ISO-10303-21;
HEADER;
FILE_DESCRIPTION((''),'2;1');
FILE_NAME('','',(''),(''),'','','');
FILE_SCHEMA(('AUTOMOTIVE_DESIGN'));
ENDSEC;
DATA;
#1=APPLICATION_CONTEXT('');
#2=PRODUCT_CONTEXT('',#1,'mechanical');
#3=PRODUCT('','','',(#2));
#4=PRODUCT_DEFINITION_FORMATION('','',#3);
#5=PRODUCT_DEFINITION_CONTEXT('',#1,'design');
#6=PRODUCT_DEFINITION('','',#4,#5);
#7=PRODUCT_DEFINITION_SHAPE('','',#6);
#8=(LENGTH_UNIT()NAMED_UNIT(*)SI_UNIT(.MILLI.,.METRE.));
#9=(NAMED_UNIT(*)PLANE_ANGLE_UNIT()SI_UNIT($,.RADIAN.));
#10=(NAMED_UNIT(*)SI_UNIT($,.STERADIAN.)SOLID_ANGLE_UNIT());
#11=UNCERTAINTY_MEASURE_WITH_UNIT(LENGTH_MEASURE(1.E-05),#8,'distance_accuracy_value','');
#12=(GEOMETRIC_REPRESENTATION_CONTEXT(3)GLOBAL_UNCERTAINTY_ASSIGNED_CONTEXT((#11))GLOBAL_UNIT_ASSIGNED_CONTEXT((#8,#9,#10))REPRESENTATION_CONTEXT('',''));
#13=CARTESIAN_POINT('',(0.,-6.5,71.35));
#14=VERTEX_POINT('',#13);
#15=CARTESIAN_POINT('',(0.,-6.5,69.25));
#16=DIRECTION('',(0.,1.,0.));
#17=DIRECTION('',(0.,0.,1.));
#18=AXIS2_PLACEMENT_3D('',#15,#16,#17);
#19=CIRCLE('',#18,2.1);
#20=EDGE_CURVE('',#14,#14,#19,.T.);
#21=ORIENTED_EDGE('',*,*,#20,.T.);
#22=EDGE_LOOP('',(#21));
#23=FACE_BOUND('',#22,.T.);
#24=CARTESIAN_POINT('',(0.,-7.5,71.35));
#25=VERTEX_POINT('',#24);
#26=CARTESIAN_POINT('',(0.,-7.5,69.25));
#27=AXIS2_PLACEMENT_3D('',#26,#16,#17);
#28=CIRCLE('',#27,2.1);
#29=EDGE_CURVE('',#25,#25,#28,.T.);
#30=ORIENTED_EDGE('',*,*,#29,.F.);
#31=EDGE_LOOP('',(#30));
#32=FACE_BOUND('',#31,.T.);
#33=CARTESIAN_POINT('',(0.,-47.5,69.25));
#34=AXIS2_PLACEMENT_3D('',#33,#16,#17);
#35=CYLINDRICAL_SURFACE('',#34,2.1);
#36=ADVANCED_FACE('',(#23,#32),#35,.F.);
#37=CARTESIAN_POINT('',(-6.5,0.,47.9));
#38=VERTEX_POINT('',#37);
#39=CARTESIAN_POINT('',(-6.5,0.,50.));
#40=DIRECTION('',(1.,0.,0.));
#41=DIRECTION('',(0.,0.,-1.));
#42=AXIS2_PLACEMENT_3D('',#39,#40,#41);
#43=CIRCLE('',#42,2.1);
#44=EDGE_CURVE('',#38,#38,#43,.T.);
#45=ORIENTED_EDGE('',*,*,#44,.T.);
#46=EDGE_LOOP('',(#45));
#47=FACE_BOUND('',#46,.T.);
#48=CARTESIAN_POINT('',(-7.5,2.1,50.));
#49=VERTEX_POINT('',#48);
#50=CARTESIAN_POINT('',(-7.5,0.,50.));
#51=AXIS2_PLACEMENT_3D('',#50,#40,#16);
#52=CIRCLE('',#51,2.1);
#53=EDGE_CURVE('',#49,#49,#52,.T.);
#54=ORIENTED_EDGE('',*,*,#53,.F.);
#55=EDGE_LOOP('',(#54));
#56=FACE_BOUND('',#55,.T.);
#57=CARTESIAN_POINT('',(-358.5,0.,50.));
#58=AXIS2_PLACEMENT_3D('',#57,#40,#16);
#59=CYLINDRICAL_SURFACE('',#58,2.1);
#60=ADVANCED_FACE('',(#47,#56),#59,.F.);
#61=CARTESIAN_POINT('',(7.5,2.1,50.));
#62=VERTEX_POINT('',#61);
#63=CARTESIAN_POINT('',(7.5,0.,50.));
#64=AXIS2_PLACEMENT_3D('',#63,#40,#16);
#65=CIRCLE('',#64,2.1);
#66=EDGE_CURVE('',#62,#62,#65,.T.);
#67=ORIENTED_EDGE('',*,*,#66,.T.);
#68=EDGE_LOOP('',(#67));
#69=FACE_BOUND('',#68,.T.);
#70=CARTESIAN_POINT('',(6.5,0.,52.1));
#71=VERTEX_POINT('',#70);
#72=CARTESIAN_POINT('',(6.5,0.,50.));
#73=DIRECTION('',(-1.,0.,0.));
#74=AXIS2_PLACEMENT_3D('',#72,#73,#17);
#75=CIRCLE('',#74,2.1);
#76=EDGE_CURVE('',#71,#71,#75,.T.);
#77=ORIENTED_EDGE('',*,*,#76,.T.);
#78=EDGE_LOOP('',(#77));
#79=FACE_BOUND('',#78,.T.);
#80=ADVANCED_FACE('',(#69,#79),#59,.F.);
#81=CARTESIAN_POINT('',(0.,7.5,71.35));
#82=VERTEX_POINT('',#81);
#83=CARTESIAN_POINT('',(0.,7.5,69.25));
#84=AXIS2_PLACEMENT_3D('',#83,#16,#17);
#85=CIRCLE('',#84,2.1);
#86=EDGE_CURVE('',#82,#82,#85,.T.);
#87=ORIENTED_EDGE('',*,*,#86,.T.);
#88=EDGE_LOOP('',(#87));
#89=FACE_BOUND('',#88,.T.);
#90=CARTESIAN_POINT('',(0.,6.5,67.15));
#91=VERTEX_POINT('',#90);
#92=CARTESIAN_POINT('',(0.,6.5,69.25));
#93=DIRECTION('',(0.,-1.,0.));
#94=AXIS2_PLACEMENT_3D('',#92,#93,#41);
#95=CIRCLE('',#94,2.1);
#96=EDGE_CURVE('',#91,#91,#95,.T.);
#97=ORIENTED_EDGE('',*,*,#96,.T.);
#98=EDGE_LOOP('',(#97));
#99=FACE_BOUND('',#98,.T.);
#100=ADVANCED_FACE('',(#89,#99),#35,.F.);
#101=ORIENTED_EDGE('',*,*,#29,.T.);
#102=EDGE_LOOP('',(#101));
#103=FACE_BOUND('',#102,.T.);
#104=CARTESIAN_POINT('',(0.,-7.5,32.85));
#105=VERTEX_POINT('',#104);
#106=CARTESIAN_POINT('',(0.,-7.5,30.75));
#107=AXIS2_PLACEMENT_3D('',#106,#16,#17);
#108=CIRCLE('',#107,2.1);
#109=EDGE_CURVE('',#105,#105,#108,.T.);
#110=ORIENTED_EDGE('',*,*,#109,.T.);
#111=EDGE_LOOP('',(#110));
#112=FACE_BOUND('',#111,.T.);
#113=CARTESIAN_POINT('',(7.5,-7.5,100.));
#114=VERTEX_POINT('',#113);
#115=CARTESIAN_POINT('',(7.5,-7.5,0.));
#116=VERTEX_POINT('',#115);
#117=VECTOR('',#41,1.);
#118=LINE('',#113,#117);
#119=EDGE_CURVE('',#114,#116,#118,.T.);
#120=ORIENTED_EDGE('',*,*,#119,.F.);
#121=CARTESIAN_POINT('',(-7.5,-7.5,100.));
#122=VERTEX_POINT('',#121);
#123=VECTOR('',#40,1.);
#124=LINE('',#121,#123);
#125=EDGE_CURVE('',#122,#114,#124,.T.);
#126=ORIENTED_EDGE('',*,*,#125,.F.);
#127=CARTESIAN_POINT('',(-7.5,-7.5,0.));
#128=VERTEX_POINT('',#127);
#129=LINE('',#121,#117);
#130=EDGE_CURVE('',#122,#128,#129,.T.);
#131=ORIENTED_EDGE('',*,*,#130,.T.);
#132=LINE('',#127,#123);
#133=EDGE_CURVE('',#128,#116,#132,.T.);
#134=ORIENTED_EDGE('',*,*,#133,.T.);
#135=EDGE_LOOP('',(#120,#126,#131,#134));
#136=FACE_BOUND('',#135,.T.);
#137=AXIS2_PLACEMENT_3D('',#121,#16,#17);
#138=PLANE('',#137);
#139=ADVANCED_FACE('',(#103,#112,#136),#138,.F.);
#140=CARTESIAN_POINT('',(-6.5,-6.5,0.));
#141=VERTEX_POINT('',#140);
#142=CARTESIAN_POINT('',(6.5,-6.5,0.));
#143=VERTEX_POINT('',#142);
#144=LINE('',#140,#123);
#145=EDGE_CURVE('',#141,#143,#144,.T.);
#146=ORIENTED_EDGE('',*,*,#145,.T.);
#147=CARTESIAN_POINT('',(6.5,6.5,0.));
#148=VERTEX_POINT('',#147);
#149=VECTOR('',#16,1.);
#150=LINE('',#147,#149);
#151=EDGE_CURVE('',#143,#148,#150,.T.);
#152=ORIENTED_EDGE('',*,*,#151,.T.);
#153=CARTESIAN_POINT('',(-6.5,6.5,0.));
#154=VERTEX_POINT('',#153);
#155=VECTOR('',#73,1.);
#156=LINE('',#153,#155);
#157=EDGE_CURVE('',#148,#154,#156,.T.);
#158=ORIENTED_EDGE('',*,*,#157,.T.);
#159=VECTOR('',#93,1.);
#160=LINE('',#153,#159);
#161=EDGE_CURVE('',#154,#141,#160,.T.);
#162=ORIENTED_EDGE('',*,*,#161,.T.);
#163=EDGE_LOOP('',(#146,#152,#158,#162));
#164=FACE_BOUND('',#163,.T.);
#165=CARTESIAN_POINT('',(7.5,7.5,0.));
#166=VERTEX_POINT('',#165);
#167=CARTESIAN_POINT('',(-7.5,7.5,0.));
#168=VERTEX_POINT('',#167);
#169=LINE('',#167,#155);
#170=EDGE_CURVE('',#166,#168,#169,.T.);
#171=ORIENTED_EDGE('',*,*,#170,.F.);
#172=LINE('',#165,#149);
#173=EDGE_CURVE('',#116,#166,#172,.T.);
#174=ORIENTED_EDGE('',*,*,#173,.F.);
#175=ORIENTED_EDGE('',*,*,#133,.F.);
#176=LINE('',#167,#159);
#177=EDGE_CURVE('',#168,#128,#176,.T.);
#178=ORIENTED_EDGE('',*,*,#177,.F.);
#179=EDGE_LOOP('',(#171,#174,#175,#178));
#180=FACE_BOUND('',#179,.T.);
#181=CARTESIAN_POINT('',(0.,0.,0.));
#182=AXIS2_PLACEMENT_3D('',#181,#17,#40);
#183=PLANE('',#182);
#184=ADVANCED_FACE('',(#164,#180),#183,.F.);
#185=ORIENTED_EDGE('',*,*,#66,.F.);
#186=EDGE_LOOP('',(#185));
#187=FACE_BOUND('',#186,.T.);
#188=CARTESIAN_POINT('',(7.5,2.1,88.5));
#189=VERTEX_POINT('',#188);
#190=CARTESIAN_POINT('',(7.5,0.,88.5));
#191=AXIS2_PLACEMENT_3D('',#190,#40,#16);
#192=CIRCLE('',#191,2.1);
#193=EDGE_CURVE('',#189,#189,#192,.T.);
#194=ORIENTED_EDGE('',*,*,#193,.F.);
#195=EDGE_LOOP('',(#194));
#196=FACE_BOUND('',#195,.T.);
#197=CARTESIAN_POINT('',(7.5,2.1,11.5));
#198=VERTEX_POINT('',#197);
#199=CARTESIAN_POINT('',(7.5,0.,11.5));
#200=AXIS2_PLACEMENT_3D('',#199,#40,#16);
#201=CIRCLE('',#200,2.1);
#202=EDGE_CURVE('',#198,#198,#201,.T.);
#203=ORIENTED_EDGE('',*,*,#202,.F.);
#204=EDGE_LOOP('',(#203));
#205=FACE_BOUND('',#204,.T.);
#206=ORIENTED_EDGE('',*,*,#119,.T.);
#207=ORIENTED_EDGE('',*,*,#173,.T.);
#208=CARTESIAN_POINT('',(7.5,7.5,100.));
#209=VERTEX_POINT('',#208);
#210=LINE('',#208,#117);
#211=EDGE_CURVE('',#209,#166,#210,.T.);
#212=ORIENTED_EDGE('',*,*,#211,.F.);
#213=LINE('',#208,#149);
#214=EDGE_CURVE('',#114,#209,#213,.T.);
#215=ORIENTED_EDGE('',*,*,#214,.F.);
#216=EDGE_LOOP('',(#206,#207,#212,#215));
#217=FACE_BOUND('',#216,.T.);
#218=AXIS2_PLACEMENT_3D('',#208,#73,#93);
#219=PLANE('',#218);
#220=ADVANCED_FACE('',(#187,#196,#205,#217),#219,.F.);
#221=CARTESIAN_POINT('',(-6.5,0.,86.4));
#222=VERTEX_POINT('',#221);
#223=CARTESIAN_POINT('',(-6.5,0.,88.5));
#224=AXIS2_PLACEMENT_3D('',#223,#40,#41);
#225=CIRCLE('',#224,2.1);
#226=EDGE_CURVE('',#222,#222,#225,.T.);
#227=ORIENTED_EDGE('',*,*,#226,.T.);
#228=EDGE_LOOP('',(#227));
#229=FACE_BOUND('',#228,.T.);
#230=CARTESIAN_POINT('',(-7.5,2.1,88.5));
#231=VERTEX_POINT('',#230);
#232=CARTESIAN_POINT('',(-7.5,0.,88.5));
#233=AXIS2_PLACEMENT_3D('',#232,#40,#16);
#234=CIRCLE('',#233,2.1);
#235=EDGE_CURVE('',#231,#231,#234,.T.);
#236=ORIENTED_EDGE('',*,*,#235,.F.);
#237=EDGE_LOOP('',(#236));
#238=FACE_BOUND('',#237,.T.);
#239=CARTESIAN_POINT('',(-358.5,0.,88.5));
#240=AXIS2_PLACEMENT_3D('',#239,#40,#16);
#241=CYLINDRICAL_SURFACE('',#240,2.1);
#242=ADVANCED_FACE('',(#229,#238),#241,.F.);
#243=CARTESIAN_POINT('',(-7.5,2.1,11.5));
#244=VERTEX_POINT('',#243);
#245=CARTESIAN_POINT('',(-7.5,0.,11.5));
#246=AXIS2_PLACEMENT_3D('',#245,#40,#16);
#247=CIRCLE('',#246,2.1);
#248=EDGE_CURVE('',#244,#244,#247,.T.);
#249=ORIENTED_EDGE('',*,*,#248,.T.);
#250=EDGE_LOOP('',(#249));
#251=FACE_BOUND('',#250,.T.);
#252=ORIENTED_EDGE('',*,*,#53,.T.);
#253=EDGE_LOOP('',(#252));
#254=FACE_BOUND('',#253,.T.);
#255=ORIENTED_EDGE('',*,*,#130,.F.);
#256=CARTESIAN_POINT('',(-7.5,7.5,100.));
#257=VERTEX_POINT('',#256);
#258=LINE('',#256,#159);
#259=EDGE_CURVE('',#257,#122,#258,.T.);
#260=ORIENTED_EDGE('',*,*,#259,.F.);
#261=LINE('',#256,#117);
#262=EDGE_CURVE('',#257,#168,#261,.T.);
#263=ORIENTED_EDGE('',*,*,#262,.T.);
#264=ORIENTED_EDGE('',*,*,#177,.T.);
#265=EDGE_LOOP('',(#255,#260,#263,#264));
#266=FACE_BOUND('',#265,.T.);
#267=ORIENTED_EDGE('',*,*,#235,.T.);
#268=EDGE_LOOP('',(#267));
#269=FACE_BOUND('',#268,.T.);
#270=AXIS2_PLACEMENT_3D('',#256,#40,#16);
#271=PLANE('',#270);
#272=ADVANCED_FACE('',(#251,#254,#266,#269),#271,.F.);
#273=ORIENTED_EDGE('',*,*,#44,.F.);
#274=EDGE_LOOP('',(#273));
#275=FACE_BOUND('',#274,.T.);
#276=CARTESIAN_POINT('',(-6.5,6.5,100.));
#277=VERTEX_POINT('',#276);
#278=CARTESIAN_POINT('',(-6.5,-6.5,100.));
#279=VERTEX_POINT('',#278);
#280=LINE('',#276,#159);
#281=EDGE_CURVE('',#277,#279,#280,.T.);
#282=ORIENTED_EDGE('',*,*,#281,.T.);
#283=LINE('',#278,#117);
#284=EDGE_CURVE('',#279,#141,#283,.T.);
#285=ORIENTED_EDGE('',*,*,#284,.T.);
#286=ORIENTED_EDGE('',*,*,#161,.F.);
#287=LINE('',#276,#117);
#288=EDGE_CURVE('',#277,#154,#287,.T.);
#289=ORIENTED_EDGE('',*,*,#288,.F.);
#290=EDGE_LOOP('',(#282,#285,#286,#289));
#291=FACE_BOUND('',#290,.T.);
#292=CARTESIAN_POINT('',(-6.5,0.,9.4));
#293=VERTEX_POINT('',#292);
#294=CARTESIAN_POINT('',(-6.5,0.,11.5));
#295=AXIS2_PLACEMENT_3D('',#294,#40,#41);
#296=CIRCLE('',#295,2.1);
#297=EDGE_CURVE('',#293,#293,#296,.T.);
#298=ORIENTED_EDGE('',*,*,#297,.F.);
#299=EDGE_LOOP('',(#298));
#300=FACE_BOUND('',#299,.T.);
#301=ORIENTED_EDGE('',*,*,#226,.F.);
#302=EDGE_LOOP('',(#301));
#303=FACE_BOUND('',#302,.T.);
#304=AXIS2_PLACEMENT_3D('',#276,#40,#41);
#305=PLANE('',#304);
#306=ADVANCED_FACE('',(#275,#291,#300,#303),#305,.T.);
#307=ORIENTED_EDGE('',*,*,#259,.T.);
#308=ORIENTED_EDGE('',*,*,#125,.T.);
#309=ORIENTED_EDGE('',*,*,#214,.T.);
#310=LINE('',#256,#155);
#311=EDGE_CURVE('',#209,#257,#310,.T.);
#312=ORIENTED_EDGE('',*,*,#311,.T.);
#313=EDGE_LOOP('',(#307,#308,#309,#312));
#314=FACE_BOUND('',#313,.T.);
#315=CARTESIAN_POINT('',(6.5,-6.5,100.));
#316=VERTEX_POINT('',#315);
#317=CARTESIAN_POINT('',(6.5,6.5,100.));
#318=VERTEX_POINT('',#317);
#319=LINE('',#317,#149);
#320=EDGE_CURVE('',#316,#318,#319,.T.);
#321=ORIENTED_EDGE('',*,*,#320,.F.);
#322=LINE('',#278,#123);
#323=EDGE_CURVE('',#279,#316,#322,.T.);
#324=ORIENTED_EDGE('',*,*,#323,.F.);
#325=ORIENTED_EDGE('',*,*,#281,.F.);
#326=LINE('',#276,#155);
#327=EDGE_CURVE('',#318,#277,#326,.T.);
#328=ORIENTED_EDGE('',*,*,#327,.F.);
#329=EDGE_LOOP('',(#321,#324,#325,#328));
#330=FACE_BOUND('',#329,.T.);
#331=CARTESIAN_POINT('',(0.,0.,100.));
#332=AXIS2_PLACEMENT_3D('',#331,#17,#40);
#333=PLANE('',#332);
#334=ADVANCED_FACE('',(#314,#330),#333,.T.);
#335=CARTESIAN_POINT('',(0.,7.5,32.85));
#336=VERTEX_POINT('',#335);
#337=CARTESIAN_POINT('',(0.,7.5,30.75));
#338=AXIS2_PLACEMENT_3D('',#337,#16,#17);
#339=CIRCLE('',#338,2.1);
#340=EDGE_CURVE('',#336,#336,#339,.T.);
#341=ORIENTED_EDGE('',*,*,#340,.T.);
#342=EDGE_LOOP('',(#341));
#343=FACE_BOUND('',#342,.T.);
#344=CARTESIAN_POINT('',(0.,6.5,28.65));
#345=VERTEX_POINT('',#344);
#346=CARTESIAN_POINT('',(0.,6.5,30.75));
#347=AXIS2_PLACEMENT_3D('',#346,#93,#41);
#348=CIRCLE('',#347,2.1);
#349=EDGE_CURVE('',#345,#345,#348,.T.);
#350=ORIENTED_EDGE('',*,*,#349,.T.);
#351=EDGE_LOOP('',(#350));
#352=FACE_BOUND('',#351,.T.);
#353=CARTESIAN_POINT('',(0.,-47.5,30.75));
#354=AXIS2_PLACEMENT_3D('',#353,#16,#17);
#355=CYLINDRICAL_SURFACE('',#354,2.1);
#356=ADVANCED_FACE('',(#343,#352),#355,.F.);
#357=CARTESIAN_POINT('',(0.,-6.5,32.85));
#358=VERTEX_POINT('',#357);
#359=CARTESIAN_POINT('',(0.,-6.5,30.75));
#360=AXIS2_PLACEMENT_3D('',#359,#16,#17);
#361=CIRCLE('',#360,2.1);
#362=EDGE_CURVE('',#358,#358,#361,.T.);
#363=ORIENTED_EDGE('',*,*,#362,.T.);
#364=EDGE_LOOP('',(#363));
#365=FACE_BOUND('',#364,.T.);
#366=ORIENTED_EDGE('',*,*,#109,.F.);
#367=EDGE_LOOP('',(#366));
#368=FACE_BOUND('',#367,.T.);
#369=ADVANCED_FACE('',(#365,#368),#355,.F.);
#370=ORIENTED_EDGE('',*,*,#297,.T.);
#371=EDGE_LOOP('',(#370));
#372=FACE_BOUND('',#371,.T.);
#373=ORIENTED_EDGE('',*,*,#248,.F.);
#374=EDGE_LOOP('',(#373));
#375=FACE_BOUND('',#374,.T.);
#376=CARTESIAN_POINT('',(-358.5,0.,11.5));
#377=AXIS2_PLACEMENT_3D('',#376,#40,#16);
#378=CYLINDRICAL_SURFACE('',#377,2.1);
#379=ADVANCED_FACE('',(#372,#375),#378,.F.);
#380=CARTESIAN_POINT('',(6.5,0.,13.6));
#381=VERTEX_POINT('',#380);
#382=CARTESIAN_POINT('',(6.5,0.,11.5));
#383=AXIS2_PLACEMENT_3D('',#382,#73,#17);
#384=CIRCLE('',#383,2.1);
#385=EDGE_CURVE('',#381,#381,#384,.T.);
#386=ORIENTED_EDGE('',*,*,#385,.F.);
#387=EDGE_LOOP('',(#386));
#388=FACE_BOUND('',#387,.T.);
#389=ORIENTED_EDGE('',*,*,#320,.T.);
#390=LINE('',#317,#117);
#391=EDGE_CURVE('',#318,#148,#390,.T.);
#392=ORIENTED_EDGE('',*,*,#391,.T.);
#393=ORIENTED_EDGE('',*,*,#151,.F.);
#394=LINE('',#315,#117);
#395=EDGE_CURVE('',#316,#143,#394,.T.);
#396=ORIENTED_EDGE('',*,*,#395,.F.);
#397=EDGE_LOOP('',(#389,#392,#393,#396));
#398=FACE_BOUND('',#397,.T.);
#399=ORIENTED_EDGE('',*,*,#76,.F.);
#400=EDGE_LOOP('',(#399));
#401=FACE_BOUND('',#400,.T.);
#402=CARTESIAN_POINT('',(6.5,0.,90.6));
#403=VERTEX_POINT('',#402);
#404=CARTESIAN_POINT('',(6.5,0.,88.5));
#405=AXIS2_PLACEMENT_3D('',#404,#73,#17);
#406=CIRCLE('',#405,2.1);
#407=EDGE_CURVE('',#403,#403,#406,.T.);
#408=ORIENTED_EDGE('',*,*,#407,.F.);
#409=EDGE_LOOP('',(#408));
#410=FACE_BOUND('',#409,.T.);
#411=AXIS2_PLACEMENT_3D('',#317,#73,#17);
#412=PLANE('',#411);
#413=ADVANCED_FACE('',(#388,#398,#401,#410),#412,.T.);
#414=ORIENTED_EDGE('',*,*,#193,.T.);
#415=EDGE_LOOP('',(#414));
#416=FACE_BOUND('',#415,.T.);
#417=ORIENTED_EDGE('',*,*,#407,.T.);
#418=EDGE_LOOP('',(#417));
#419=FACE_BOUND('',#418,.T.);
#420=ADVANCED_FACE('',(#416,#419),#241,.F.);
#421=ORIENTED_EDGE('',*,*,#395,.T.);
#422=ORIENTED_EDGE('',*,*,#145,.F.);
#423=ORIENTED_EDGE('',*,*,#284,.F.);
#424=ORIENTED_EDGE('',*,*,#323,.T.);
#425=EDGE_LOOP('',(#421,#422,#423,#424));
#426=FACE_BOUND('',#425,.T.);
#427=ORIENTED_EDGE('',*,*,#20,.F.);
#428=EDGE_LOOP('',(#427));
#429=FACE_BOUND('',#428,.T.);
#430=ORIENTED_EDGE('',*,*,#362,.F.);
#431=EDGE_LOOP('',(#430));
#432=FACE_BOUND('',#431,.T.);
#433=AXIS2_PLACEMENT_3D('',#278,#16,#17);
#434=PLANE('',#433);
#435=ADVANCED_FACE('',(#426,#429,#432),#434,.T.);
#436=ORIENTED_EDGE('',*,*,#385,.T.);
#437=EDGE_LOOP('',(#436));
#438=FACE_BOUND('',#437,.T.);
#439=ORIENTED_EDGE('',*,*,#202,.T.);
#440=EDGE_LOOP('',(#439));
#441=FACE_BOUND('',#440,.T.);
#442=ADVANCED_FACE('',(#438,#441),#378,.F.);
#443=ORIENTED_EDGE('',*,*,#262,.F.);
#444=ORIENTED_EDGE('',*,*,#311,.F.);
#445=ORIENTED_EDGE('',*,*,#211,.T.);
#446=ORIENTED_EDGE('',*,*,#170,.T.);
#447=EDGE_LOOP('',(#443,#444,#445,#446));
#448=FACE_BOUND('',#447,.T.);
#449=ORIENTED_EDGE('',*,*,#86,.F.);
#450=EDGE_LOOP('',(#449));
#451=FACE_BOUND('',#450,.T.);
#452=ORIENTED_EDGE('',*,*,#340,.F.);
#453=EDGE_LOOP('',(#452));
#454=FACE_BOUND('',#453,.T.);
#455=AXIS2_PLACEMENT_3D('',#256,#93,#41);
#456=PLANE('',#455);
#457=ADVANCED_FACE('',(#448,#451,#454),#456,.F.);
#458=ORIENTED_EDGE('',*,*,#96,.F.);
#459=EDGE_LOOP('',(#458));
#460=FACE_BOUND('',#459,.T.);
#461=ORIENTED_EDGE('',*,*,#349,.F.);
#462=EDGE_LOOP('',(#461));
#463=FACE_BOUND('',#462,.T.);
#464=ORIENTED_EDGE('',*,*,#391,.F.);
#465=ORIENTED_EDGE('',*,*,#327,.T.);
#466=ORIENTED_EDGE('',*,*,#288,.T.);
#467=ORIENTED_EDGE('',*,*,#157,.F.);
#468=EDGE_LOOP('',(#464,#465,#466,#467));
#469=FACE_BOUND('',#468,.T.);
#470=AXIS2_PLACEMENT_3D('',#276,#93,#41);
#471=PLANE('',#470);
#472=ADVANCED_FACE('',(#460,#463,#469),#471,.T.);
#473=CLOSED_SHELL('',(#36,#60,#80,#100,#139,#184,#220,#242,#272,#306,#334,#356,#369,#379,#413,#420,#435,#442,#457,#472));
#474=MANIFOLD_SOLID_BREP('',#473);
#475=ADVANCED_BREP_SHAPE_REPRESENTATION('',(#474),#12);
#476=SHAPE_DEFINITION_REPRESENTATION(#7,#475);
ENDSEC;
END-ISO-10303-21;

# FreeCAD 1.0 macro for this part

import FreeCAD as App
import Part
import Sketcher
Q = App.Units.Quantity

doc = App.newDocument("Part")
body = doc.addObject("PartDesign::Body", "Body")

# Sketch on XY plane
sketch1 = body.newObject("Sketcher::SketchObject", "Sketch")
sketch1.AttachmentSupport = (doc.getObject("XY_Plane"), [""])
sketch1.MapMode = "FlatFace"
sketch1.addGeometry([
    Part.LineSegment(App.Vector(-7.5, 7.5, 0), App.Vector(-7.5, -7.5, 0)),  # 0
    Part.LineSegment(App.Vector(-7.5, -7.5, 0), App.Vector(7.5, -7.5, 0)),  # 1
    Part.LineSegment(App.Vector(7.5, -7.5, 0), App.Vector(7.5, 7.5, 0)),  # 2
    Part.LineSegment(App.Vector(7.5, 7.5, 0), App.Vector(-7.5, 7.5, 0)),  # 3
    Part.LineSegment(App.Vector(6.5, -6.5, 0), App.Vector(-6.5, -6.5, 0)),  # 4
    Part.LineSegment(App.Vector(-6.5, -6.5, 0), App.Vector(-6.5, 6.5, 0)),  # 5
    Part.LineSegment(App.Vector(-6.5, 6.5, 0), App.Vector(6.5, 6.5, 0)),  # 6
    Part.LineSegment(App.Vector(6.5, 6.5, 0), App.Vector(6.5, -6.5, 0)),  # 7
], False)
sketch1.addConstraint([
    Sketcher.Constraint("Coincident", 0, 2, 1, 1),
    Sketcher.Constraint("Coincident", 1, 2, 2, 1),
    Sketcher.Constraint("Coincident", 2, 2, 3, 1),
    Sketcher.Constraint("Coincident", 3, 2, 0, 1),
    Sketcher.Constraint("Coincident", 4, 2, 5, 1),
    Sketcher.Constraint("Coincident", 5, 2, 6, 1),
    Sketcher.Constraint("Coincident", 6, 2, 7, 1),
    Sketcher.Constraint("Coincident", 7, 2, 4, 1),
    Sketcher.Constraint("Vertical", 0),
    Sketcher.Constraint("Horizontal", 1),
    Sketcher.Constraint("Vertical", 2),
    Sketcher.Constraint("Horizontal", 3),
    Sketcher.Constraint("Horizontal", 4),
    Sketcher.Constraint("Vertical", 5),
    Sketcher.Constraint("Horizontal", 6),
    Sketcher.Constraint("Vertical", 7),
    Sketcher.Constraint("Symmetric", 0, 2, 2, 2, -1, 1),
    Sketcher.Constraint("Symmetric", 4, 2, 6, 2, -1, 1),
    Sketcher.Constraint("Equal", 3, 0),
    Sketcher.Constraint("Equal", 6, 5),
    Sketcher.Constraint("DistanceX", 1, 1, 1, 2, Q("15 mm")),
    Sketcher.Constraint("DistanceX", 4, 2, 4, 1, Q("13 mm")),
])
pad1 = body.newObject("PartDesign::Pad", "Pad")
pad1.Profile = sketch1
pad1.Length = 100

# Sketch on YZ plane
sketch2 = body.newObject("Sketcher::SketchObject", "Sketch001")
sketch2.AttachmentSupport = (doc.getObject("YZ_Plane"), [""])
sketch2.MapMode = "FlatFace"
sketch2.AttachmentOffset = App.Placement(App.Vector(0, 0, 7.5), App.Rotation())
sketch2.addGeometry([
    Part.Circle(App.Vector(0, 50, 0), App.Vector(0, 0, 1), 2.1),
    Part.Circle(App.Vector(0, 88.5, 0), App.Vector(0, 0, 1), 2.1),
    Part.Circle(App.Vector(0, 11.5, 0), App.Vector(0, 0, 1), 2.1),
], False)
sketch2.addConstraint([
    Sketcher.Constraint("Equal", 0, 1),
    Sketcher.Constraint("Equal", 1, 2),
    Sketcher.Constraint("PointOnObject", 0, 3, -2),
    Sketcher.Constraint("PointOnObject", 1, 3, -2),
    Sketcher.Constraint("PointOnObject", 2, 3, -2),
    Sketcher.Constraint("Diameter", 0, Q("4.2 mm")),
    Sketcher.Constraint("DistanceY", -1, 1, 0, 3, Q("50 mm")),
    Sketcher.Constraint("DistanceY", 2, 3, 1, 3, Q("77 mm")),
    Sketcher.Constraint("DistanceY", -1, 1, 1, 3, Q("88.5 mm")),
])
pocket1 = body.newObject("PartDesign::Pocket", "Pocket")
pocket1.Profile = sketch2
pocket1.Length = 366

# Sketch on XZ plane
sketch3 = body.newObject("Sketcher::SketchObject", "Sketch002")
sketch3.AttachmentSupport = (doc.getObject("XZ_Plane"), [""])
sketch3.MapMode = "FlatFace"
sketch3.AttachmentOffset = App.Placement(App.Vector(0, 0, -7.5), App.Rotation())
sketch3.addGeometry([
    Part.Circle(App.Vector(0, 30.75, 0), App.Vector(0, 0, 1), 2.1),
    Part.Circle(App.Vector(0, 69.25, 0), App.Vector(0, 0, 1), 2.1),
], False)
sketch3.addConstraint([
    Sketcher.Constraint("Equal", 0, 1),
    Sketcher.Constraint("PointOnObject", 0, 3, -2),
    Sketcher.Constraint("PointOnObject", 1, 3, -2),
    Sketcher.Constraint("Diameter", 0, Q("4.2 mm")),
    Sketcher.Constraint("DistanceY", 0, 3, 1, 3, Q("38.5 mm")),
    Sketcher.Constraint("DistanceY", -1, 1, 0, 3, Q("30.75 mm")),
])
pocket2 = body.newObject("PartDesign::Pocket", "Pocket001")
pocket2.Profile = sketch3
pocket2.Length = 55
pocket2.Reversed = True

doc.recompute()
